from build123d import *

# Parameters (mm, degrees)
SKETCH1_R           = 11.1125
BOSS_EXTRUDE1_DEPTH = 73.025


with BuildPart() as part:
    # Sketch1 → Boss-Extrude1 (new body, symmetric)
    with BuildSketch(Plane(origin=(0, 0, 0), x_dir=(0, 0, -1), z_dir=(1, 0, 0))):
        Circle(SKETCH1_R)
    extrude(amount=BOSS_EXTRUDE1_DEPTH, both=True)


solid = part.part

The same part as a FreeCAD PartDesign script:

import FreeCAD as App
import Part
import Sketcher
Q = App.Units.Quantity

doc = App.newDocument("Part")
body = doc.addObject("PartDesign::Body", "Body")

sketch1 = body.newObject("Sketcher::SketchObject", "Sketch")
sketch1.AttachmentSupport = (doc.getObject("YZ_Plane"), [""])
sketch1.MapMode = "FlatFace"
sketch1.addGeometry(Part.Circle(App.Vector(0, 0, 0), App.Vector(0, 0, 1), 11), False)
sketch1.addConstraint([
    Sketcher.Constraint("Coincident", 0, 3, -1, 1),
    Sketcher.Constraint("Diameter", 0, Q("0.875 in")),
])
pad1 = body.newObject("PartDesign::Pad", "Pad")
pad1.Profile = sketch1
pad1.Length = Q("5.75 in")
pad1.Midplane = True

doc.recompute()
